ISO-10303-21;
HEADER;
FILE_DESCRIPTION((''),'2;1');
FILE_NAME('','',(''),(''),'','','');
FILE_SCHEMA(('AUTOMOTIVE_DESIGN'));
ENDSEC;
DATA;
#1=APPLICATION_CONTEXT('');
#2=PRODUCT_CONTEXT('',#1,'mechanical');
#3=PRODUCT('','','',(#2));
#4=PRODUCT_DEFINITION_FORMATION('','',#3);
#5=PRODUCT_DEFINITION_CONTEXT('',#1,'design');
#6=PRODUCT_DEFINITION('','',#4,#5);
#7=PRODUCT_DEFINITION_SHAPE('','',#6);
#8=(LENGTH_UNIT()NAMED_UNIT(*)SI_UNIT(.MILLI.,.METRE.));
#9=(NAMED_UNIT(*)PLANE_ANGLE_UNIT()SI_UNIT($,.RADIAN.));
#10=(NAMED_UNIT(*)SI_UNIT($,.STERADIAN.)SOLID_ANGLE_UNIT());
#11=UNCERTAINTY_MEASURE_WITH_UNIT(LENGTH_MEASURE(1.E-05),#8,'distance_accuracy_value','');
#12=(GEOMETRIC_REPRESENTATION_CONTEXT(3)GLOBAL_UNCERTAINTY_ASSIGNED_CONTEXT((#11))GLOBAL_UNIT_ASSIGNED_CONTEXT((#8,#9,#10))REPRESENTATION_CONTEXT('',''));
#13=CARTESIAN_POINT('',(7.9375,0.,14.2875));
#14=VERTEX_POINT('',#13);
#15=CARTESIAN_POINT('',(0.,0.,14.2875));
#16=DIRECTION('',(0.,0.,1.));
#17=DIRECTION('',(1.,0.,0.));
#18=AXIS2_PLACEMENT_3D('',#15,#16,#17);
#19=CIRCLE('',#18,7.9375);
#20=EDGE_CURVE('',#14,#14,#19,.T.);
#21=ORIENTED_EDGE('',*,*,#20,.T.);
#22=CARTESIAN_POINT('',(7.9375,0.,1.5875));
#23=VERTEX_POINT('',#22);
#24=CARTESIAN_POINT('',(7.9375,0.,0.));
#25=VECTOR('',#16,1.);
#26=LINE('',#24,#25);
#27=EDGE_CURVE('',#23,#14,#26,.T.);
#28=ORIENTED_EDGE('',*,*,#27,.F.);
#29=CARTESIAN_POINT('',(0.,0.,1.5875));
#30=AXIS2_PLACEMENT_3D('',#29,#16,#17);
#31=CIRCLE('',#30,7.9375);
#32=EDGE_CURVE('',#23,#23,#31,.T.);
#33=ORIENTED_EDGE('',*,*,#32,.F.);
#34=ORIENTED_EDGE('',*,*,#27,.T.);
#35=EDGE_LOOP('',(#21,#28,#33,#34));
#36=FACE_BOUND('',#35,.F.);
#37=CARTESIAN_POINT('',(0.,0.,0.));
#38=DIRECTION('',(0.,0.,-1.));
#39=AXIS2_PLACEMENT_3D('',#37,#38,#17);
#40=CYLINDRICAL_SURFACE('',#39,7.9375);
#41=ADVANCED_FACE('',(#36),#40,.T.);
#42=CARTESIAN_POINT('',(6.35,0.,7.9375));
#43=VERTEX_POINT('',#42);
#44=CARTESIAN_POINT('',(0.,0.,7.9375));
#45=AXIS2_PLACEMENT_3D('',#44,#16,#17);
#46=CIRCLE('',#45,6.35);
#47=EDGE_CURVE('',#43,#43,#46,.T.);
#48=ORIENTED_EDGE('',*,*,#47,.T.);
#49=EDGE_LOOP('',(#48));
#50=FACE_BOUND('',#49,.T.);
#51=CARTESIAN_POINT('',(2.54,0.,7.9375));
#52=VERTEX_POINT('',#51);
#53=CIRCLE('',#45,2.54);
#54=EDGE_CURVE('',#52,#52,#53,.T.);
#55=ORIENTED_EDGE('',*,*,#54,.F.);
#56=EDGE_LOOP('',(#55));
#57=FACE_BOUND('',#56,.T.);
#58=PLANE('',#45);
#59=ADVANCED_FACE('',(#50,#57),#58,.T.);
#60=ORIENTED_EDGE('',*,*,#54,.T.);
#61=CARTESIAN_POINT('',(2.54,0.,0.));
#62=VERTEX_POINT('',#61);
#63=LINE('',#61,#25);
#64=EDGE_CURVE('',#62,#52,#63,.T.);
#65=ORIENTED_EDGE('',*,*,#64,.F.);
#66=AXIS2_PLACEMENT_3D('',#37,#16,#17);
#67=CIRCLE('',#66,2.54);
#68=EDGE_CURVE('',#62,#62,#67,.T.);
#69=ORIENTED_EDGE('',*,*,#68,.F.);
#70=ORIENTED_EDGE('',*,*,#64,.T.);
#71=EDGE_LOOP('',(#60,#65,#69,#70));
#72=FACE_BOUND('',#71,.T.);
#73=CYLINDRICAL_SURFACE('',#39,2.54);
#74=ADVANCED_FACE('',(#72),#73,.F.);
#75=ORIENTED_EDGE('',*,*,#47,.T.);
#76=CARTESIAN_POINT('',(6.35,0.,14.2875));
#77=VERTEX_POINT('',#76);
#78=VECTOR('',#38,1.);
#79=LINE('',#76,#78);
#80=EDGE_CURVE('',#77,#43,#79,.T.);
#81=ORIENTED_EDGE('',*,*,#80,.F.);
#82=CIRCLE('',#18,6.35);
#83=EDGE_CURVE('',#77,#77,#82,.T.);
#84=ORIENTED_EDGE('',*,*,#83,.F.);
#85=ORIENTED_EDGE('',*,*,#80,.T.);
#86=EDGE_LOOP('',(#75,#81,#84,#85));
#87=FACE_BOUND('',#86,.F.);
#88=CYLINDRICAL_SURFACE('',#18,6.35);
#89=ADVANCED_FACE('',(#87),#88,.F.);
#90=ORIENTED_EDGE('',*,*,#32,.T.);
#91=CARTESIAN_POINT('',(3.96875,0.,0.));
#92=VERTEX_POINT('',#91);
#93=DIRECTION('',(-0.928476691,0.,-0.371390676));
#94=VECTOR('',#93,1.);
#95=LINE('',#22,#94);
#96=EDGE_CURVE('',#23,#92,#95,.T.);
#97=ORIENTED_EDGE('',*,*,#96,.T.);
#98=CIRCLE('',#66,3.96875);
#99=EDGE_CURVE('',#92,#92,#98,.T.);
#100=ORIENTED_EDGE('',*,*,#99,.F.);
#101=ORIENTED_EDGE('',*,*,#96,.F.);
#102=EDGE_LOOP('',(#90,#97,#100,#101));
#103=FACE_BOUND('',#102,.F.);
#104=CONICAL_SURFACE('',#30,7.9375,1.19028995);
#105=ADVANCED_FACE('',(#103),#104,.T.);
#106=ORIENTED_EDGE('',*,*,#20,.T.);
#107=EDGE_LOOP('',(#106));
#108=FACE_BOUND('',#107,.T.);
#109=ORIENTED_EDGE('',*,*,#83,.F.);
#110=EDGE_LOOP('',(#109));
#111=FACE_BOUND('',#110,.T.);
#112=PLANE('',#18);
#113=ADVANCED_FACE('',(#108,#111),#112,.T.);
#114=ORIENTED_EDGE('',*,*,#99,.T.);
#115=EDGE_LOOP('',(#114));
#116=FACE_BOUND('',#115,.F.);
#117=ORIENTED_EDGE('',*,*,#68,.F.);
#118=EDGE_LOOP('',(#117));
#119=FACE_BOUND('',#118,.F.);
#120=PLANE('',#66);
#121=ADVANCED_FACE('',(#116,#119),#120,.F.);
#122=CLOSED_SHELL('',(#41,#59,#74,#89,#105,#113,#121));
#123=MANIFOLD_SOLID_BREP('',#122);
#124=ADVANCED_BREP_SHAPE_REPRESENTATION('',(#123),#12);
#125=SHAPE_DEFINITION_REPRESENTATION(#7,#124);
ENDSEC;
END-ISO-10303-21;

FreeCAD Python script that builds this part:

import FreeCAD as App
import Part
import Sketcher
from FreeCAD import Vector
Q = App.Units.Quantity


def edges_at(feature, points):
    """Names of the edges that pass closest to the given points."""
    edges = feature.Shape.Edges
    near = lambda p: min(range(len(edges)), key=lambda i: edges[i].distToShape(Part.Vertex(*p))[0])
    return sorted({f"Edge{near(p) + 1}" for p in points})

doc = App.newDocument("Part")
body = doc.addObject("PartDesign::Body", "Body")

# Sketch on XY plane
sketch1 = body.newObject("Sketcher::SketchObject", "Sketch")
sketch1.AttachmentSupport = (doc.getObject("XY_Plane"), [""])
sketch1.MapMode = "FlatFace"
sketch1.addGeometry([
    Part.Circle(Vector(0, 0, 0), Vector(0, 0, 1), 7.9375),
    Part.Circle(Vector(0, 0, 0), Vector(0, 0, 1), 2.54),
], False)
sketch1.addConstraint([
    Sketcher.Constraint("Coincident", 0, 3, -1, 1),
    Sketcher.Constraint("Coincident", 1, 3, -1, 1),
    Sketcher.Constraint("Diameter", 1, Q("0.2 in")),
    Sketcher.Constraint("Diameter", 0, Q("0.625 in")),
])
pad1 = body.newObject("PartDesign::Pad", "Pad")
pad1.Profile = sketch1
pad1.Length = Q("0.5625 in")
doc.recompute()

chamfer = body.newObject("PartDesign::Chamfer", "Chamfer")
chamfer.Base = (pad1, edges_at(pad1, [(-7.938, 0, 0)]))
chamfer.ChamferType = "Two distances"
chamfer.Size = Q("0.0625 in")
chamfer.Size2 = Q("0.15625 in")

# Sketch on XY plane
sketch2 = body.newObject("Sketcher::SketchObject", "Sketch001")
sketch2.AttachmentSupport = (doc.getObject("XY_Plane"), [""])
sketch2.MapMode = "FlatFace"
sketch2.AttachmentOffset = App.Placement(Vector(0, 0, 0.5625 * 25.4), App.Rotation())
sketch2.addGeometry([
    Part.Circle(Vector(0, 0, 0), Vector(0, 0, 1), 6.35),
    Part.Circle(Vector(0, 0, 0), Vector(0, 0, 1), 2.54),
], False)
sketch2.addConstraint([
    Sketcher.Constraint("Coincident", 0, 3, -1, 1),
    Sketcher.Constraint("Coincident", 1, 3, -1, 1),
    Sketcher.Constraint("Diameter", 0, Q("0.5 in")),
    Sketcher.Constraint("Diameter", 1, Q("0.2 in")),
])
pocket1 = body.newObject("PartDesign::Pocket", "Pocket")
pocket1.Profile = sketch2
pocket1.Length = Q("0.25 in")

doc.recompute()
